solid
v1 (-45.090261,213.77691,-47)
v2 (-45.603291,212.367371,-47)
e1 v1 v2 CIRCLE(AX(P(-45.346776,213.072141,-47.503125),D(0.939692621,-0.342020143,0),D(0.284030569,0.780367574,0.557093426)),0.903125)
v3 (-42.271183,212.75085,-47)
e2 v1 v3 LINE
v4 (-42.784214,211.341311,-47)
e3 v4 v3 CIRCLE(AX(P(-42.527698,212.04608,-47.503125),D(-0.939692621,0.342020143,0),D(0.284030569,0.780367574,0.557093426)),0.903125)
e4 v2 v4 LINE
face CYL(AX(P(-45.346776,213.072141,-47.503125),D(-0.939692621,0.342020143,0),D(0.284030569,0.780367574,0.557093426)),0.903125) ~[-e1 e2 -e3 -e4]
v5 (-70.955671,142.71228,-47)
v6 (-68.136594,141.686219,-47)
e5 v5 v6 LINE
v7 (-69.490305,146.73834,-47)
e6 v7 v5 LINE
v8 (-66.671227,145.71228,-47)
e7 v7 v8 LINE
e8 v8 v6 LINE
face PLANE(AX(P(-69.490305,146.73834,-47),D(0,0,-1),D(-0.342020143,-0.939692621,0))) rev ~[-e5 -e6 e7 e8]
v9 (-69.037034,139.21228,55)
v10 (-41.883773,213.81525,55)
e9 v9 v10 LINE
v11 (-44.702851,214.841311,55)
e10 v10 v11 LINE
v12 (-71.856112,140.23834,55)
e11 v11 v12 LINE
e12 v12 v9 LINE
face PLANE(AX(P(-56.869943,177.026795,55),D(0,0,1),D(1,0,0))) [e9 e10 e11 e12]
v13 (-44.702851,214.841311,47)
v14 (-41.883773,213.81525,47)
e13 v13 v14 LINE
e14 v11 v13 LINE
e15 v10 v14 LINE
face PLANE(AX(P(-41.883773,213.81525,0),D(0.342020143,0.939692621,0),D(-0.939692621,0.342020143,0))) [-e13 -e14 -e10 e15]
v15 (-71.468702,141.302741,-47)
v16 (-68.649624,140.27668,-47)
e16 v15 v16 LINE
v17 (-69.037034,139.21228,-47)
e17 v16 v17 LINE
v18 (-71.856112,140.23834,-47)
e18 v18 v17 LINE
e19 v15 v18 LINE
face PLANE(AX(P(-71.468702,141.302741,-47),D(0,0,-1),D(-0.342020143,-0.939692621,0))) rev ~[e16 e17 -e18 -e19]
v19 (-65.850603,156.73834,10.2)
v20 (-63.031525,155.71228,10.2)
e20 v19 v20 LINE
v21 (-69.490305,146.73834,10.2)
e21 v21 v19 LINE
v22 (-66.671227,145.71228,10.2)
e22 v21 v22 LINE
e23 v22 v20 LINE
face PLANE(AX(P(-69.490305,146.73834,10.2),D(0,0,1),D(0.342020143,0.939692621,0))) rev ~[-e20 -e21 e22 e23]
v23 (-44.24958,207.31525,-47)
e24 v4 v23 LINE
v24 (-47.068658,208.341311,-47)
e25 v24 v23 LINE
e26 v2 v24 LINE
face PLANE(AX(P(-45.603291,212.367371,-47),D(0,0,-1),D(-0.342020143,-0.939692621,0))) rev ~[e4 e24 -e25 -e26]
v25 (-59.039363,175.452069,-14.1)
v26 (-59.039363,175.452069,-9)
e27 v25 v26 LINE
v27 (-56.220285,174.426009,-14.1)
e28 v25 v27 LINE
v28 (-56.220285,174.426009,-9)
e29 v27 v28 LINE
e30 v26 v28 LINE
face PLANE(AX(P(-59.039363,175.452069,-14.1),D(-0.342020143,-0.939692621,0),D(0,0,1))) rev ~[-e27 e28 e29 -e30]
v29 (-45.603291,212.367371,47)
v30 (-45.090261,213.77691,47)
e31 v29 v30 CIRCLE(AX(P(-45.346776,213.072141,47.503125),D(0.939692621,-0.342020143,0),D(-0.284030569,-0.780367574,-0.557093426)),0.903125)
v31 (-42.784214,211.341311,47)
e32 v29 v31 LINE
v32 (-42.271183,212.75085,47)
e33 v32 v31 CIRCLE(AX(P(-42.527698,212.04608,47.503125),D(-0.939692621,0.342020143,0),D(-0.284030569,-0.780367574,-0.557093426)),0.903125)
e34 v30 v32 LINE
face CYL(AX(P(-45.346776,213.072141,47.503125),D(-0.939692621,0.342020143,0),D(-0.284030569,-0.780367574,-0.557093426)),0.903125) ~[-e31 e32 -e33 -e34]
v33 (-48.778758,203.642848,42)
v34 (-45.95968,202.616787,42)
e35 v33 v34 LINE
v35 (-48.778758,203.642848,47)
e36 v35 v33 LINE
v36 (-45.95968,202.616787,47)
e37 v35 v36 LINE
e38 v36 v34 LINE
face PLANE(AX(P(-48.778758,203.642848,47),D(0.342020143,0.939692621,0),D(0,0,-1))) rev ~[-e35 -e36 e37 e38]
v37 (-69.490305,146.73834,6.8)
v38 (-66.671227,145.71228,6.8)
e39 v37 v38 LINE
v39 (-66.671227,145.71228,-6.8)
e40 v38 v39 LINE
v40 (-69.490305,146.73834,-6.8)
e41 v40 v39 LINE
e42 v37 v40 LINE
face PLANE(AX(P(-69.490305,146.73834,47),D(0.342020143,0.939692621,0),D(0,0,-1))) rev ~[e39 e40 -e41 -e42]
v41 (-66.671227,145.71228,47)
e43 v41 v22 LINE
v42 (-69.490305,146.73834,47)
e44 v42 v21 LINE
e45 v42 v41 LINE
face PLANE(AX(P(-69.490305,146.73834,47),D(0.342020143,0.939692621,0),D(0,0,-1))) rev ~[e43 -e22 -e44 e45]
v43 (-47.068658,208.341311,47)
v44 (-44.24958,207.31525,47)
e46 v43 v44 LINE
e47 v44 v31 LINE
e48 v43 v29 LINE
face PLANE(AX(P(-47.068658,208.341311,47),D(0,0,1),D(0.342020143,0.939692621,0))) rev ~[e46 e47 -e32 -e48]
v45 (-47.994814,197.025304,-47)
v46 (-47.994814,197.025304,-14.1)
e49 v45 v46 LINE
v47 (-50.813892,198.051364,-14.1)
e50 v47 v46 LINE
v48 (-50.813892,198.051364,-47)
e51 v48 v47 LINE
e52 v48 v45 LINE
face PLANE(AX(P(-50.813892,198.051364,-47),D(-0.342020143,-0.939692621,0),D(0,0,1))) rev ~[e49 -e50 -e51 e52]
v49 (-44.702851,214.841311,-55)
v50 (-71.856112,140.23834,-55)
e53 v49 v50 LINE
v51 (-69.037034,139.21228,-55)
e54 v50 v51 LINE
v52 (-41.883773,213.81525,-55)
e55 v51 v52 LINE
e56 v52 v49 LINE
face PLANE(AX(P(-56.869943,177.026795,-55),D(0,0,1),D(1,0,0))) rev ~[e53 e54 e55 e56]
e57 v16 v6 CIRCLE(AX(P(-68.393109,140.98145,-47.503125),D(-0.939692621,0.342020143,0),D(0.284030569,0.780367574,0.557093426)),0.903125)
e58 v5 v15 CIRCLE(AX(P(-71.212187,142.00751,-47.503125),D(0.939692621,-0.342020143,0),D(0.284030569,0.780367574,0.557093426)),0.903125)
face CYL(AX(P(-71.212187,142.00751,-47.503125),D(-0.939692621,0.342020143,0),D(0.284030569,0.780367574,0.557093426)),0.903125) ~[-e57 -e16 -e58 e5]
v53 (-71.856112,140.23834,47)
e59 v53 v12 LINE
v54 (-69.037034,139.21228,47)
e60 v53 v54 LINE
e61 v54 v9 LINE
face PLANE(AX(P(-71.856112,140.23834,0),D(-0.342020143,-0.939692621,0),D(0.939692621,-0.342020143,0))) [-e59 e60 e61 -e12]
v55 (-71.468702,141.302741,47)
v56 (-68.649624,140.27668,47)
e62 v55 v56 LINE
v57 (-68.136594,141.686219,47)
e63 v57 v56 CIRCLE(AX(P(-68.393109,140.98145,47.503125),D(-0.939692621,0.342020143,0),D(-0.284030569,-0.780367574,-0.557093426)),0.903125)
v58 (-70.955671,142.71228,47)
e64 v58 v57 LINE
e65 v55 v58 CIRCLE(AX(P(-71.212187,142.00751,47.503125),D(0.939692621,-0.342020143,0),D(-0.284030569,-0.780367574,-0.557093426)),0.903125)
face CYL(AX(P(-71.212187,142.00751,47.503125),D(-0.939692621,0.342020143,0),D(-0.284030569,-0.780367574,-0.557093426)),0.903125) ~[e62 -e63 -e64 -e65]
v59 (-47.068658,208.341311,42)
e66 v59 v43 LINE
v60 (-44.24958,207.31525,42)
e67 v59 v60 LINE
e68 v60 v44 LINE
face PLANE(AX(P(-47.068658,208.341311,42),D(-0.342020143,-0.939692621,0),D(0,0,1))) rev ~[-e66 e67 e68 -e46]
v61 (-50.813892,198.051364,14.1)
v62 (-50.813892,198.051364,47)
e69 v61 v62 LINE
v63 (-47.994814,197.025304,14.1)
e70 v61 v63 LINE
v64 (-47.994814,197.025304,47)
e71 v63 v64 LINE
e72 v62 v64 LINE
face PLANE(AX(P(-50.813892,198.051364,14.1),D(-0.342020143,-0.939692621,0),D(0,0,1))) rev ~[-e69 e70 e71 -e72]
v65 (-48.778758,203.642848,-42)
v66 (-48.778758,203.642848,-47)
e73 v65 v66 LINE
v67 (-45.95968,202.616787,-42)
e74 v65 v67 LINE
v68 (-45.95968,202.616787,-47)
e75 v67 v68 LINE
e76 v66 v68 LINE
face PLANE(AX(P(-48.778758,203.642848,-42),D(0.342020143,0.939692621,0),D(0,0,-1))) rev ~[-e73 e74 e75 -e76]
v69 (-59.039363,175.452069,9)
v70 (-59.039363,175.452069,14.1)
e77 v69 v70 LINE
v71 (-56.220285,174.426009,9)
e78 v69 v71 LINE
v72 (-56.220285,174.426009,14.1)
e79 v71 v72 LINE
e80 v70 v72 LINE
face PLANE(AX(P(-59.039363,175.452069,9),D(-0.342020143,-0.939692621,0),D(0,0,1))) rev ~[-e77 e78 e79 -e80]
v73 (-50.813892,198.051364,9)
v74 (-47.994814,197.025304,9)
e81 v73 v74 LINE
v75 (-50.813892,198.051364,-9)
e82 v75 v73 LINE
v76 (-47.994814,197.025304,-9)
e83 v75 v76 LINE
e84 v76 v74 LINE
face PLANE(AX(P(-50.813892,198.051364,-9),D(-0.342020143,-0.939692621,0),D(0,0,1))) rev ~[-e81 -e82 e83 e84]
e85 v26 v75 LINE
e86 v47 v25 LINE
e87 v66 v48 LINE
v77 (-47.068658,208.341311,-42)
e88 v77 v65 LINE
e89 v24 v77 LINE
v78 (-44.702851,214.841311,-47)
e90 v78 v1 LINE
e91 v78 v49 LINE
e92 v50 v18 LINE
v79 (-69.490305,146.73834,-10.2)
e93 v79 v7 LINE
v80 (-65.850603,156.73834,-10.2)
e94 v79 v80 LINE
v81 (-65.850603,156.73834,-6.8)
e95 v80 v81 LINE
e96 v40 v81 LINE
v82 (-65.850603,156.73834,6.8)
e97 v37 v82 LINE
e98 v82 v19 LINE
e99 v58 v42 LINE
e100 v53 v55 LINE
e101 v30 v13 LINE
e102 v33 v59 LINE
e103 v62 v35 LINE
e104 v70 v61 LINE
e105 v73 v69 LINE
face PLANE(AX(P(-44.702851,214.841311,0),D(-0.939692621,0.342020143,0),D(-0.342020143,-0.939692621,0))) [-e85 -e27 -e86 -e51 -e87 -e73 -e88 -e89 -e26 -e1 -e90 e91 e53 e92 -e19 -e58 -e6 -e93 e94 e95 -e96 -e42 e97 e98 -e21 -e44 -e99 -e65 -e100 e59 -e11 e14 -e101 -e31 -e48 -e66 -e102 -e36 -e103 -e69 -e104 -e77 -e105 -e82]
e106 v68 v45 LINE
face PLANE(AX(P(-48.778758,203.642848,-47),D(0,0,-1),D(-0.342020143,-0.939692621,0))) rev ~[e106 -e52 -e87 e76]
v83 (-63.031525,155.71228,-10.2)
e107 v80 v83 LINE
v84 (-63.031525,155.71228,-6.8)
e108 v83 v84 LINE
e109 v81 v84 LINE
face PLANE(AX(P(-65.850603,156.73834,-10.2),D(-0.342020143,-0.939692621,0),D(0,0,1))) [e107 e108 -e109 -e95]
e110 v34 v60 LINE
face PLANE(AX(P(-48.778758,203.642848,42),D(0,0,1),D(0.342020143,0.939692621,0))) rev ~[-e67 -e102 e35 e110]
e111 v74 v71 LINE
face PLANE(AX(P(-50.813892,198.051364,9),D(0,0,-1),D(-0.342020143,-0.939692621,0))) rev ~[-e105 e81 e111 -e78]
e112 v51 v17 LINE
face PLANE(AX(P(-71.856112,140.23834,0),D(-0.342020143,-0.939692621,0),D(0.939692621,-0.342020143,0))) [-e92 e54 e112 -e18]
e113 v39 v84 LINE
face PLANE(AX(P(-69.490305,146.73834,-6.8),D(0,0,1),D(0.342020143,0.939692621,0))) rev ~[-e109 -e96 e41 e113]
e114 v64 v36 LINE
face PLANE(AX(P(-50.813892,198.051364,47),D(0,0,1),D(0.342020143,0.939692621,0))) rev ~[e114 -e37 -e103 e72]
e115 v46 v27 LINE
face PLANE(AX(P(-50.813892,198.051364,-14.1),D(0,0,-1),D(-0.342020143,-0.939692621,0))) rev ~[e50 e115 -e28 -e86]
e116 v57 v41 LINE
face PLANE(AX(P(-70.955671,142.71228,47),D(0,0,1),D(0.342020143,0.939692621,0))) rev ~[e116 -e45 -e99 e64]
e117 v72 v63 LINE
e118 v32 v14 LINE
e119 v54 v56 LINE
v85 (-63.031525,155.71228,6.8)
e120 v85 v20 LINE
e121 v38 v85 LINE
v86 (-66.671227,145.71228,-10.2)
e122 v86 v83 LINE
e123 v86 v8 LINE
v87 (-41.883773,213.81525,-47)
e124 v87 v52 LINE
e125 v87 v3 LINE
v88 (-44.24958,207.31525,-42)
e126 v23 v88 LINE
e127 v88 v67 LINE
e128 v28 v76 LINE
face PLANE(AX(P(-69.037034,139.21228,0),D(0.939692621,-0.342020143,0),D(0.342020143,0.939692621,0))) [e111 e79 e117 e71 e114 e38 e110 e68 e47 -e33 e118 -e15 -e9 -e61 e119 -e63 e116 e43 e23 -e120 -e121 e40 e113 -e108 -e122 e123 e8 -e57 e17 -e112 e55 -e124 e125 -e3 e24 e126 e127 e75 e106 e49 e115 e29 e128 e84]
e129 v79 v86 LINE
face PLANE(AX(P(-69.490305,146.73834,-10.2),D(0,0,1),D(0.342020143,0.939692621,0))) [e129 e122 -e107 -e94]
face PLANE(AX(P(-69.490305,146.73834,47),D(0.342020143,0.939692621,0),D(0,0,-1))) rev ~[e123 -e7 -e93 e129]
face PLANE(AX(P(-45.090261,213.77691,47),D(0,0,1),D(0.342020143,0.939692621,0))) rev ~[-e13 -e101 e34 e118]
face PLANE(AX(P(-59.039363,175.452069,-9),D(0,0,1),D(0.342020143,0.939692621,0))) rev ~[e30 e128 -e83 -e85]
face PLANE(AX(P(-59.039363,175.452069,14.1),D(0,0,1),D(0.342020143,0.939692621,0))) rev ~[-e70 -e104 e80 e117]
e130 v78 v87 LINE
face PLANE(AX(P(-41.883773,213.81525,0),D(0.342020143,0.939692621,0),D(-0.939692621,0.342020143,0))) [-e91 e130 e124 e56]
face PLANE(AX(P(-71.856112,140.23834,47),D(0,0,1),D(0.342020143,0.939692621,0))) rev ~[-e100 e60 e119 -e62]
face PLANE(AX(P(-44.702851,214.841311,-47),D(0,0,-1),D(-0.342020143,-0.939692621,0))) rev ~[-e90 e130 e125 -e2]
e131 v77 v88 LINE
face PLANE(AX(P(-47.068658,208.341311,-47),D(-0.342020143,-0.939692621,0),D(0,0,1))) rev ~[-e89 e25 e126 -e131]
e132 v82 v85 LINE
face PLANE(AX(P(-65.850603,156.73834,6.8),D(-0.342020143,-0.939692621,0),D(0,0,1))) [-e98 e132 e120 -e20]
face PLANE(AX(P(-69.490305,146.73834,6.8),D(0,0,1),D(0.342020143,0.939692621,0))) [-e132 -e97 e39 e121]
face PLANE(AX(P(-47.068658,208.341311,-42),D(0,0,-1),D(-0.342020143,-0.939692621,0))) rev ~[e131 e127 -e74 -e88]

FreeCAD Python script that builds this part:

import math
import FreeCAD as App
import Part
import Sketcher
Q = App.Units.Quantity


def add_polygon(sketch, points):
    """Adds a closed chain of lines whose ends are joined by coincident constraints."""
    first, n = sketch.GeometryCount, len(points)
    for a, b in zip(points, points[1:] + points[:1]):
        sketch.addGeometry(Part.LineSegment(App.Vector(*a, 0), App.Vector(*b, 0)), False)
    for i in range(n):
        sketch.addConstraint(Sketcher.Constraint("Coincident", first + i, 2, first + (i + 1) % n, 1))

doc = App.newDocument("Part")
body = doc.addObject("PartDesign::Body", "Body")

# Sketch on XY plane
sketch1 = body.newObject("Sketcher::SketchObject", "Sketch")
sketch1.AttachmentSupport = (doc.getObject("XY_Plane"), [""])
sketch1.MapMode = "FlatFace"
add_polygon(sketch1, [(-44.7, 214.8), (-71.9, 140.2), (-69, 139.2), (-41.9, 213.8)])  # lines 0-3
sketch1.addConstraint([
    Sketcher.Constraint("Perpendicular", 0, 1),
    Sketcher.Constraint("Perpendicular", 1, 2),
    Sketcher.Constraint("Perpendicular", 2, 3),
    Sketcher.Constraint("Angle", 0, Q("-110 deg")),
    Sketcher.Constraint("Distance", 1, 3.0),
    Sketcher.Constraint("DistanceX", 0, 2, -1, 1, 71.856112),
    Sketcher.Constraint("DistanceY", -1, 1, 0, 2, 140.23834),
    Sketcher.Constraint("DistanceY", -1, 1, 2, 2, 213.81525),
])
pad1 = body.newObject("PartDesign::Pad", "Pad")
pad1.Profile = sketch1
pad1.Length = 110
pad1.Midplane = True

# Sketch on an angled plane
sketch2 = body.newObject("Sketcher::SketchObject", "Sketch001")
sketch2.Placement = App.Placement(App.Vector(-108.522277, 39.498879, 0), App.Rotation(App.Vector(0, 0, 1), App.Vector(0.342020143, 0.939692621, 0), App.Vector(-0.939692621, 0.342020143, 0), "ZXY"))
sketch2.addGeometry([
    Part.LineSegment(App.Vector(47, 186.6, 0), App.Vector(-47, 186.6, 0)),  # 0
    Part.LineSegment(App.Vector(-47, 186.6, 0), App.Vector(-47, 185.5, 0)),  # 1
    Part.ArcOfCircle(Part.Circle(App.Vector(-47.5, 184.7, 0), App.Vector(0, 0, 1), 0.9), math.radians(-56), math.radians(56)),  # 2
    Part.LineSegment(App.Vector(-47, 184, 0), App.Vector(-47, 179.7, 0)),  # 3
    Part.LineSegment(App.Vector(-47, 179.7, 0), App.Vector(-42, 179.7, 0)),  # 4
    Part.LineSegment(App.Vector(-42, 179.7, 0), App.Vector(-42, 174.7, 0)),  # 5
    Part.LineSegment(App.Vector(-42, 174.7, 0), App.Vector(-47, 174.7, 0)),  # 6
    Part.LineSegment(App.Vector(-47, 174.7, 0), App.Vector(-47, 168.7, 0)),  # 7
    Part.LineSegment(App.Vector(-47, 168.7, 0), App.Vector(-14.1, 168.7, 0)),  # 8
    Part.LineSegment(App.Vector(-14.1, 168.7, 0), App.Vector(-14.1, 144.7, 0)),  # 9
    Part.LineSegment(App.Vector(-14.1, 144.7, 0), App.Vector(-9, 144.7, 0)),  # 10
    Part.LineSegment(App.Vector(-9, 144.7, 0), App.Vector(-9, 168.7, 0)),  # 11
    Part.LineSegment(App.Vector(-9, 168.7, 0), App.Vector(9, 168.7, 0)),  # 12
    Part.LineSegment(App.Vector(9, 168.7, 0), App.Vector(9, 144.7, 0)),  # 13
    Part.LineSegment(App.Vector(9, 144.7, 0), App.Vector(14.1, 144.7, 0)),  # 14
    Part.LineSegment(App.Vector(14.1, 144.7, 0), App.Vector(14.1, 168.7, 0)),  # 15
    Part.LineSegment(App.Vector(14.1, 168.7, 0), App.Vector(47, 168.7, 0)),  # 16
    Part.LineSegment(App.Vector(47, 168.7, 0), App.Vector(47, 174.7, 0)),  # 17
    Part.LineSegment(App.Vector(47, 174.7, 0), App.Vector(42, 174.7, 0)),  # 18
    Part.LineSegment(App.Vector(42, 174.7, 0), App.Vector(42, 179.7, 0)),  # 19
    Part.LineSegment(App.Vector(42, 179.7, 0), App.Vector(47, 179.7, 0)),  # 20
    Part.LineSegment(App.Vector(47, 179.7, 0), App.Vector(47, 184, 0)),  # 21
    Part.ArcOfCircle(Part.Circle(App.Vector(47.5, 184.7, 0), App.Vector(0, 0, 1), 0.9), math.radians(124), math.radians(236)),  # 22
    Part.LineSegment(App.Vector(47, 185.5, 0), App.Vector(47, 186.6, 0)),  # 23
], False)
sketch2.addConstraint([
    Sketcher.Constraint("Coincident", 0, 2, 1, 1),
    Sketcher.Constraint("Coincident", 1, 2, 2, 2),
    Sketcher.Constraint("Coincident", 2, 1, 3, 1),
    Sketcher.Constraint("Coincident", 3, 2, 4, 1),
    Sketcher.Constraint("Coincident", 4, 2, 5, 1),
    Sketcher.Constraint("Coincident", 5, 2, 6, 1),
    Sketcher.Constraint("Coincident", 6, 2, 7, 1),
    Sketcher.Constraint("Coincident", 7, 2, 8, 1),
    Sketcher.Constraint("Coincident", 8, 2, 9, 1),
    Sketcher.Constraint("Coincident", 9, 2, 10, 1),
    Sketcher.Constraint("Coincident", 10, 2, 11, 1),
    Sketcher.Constraint("Coincident", 11, 2, 12, 1),
    Sketcher.Constraint("Coincident", 12, 2, 13, 1),
    Sketcher.Constraint("Coincident", 13, 2, 14, 1),
    Sketcher.Constraint("Coincident", 14, 2, 15, 1),
    Sketcher.Constraint("Coincident", 15, 2, 16, 1),
    Sketcher.Constraint("Coincident", 16, 2, 17, 1),
    Sketcher.Constraint("Coincident", 17, 2, 18, 1),
    Sketcher.Constraint("Coincident", 18, 2, 19, 1),
    Sketcher.Constraint("Coincident", 19, 2, 20, 1),
    Sketcher.Constraint("Coincident", 20, 2, 21, 1),
    Sketcher.Constraint("Coincident", 21, 2, 22, 2),
    Sketcher.Constraint("Coincident", 22, 1, 23, 1),
    Sketcher.Constraint("Coincident", 23, 2, 0, 1),
    Sketcher.Constraint("Horizontal", 0),
    Sketcher.Constraint("Vertical", 1),
    Sketcher.Constraint("Vertical", 3),
    Sketcher.Constraint("Horizontal", 4),
    Sketcher.Constraint("Vertical", 5),
    Sketcher.Constraint("Horizontal", 6),
    Sketcher.Constraint("Vertical", 7),
    Sketcher.Constraint("Horizontal", 8),
    Sketcher.Constraint("Vertical", 9),
    Sketcher.Constraint("Horizontal", 10),
    Sketcher.Constraint("Vertical", 11),
    Sketcher.Constraint("Horizontal", 12),
    Sketcher.Constraint("Vertical", 13),
    Sketcher.Constraint("Horizontal", 14),
    Sketcher.Constraint("Vertical", 15),
    Sketcher.Constraint("Horizontal", 16),
    Sketcher.Constraint("Vertical", 17),
    Sketcher.Constraint("Horizontal", 18),
    Sketcher.Constraint("Vertical", 19),
    Sketcher.Constraint("Horizontal", 20),
    Sketcher.Constraint("Vertical", 21),
    Sketcher.Constraint("Vertical", 23),
    Sketcher.Constraint("Equal", 2, 22),
    Sketcher.Constraint("Symmetric", 2, 3, 22, 3, -2),
    Sketcher.Constraint("Symmetric", 10, 2, 13, 2, -2),
    Sketcher.Constraint("Symmetric", 8, 2, 15, 2, -2),
    Sketcher.Constraint("Symmetric", 6, 2, 17, 2, -2),
    Sketcher.Constraint("Symmetric", 4, 2, 19, 2, -2),
    Sketcher.Constraint("Horizontal", 8, 2, 11, 2),
    Sketcher.Constraint("Horizontal", 2, 1, 21, 2),
    Sketcher.Constraint("Horizontal", 1, 2, 22, 1),
    Sketcher.Constraint("Vertical", 1, 2, 2, 1),
    Sketcher.Constraint("Vertical", 3, 2, 6, 2),
    Sketcher.Constraint("Equal", 20, 5),
    Sketcher.Constraint("DistanceX", 0, 2, 0, 1, 94.0),
    Sketcher.Constraint("DistanceX", 4, 1, 4, 2, 5.0),
    Sketcher.Constraint("DistanceX", 12, 1, 12, 2, 18.0),
    Sketcher.Constraint("DistanceX", 8, 1, 8, 2, 32.9),
    Sketcher.Constraint("DistanceY", 9, 2, 5, 2, 30.0),
    Sketcher.Constraint("DistanceY", 2, 1, 1, 2, 1.5),
    Sketcher.Constraint("Radius", 2, 0.903125),
    Sketcher.Constraint("DistanceY", 1, 2, 1, 1, 1.132712),
    Sketcher.Constraint("DistanceY", 3, 2, 3, 1, 4.284444),
    Sketcher.Constraint("DistanceY", 7, 2, 7, 1, 5.950333),
    Sketcher.Constraint("DistanceY", -1, 1, 0, 2, 186.595519),
])
pocket1 = body.newObject("PartDesign::Pocket", "Pocket")
pocket1.Profile = sketch2
pocket1.Type = "UpToFirst"

# Sketch on an angled plane
sketch3 = body.newObject("Sketcher::SketchObject", "Sketch002")
sketch3.Placement = App.Placement(App.Vector(-108.522277, 39.498879, 0), App.Rotation(App.Vector(0, 0, 1), App.Vector(0.342020143, 0.939692621, 0), App.Vector(-0.939692621, 0.342020143, 0), "ZXY"))
sketch3.addGeometry([
    Part.LineSegment(App.Vector(47, 107.2, 0), App.Vector(47, 108.3, 0)),  # 0
    Part.ArcOfCircle(Part.Circle(App.Vector(47.5, 109.1, 0), App.Vector(0, 0, 1), 0.9), math.radians(124), math.radians(236)),  # 1
    Part.LineSegment(App.Vector(47, 109.8, 0), App.Vector(47, 114.1, 0)),  # 2
    Part.LineSegment(App.Vector(47, 114.1, 0), App.Vector(-47, 114.1, 0)),  # 3
    Part.LineSegment(App.Vector(-47, 114.1, 0), App.Vector(-47, 109.8, 0)),  # 4
    Part.ArcOfCircle(Part.Circle(App.Vector(-47.5, 109.1, 0), App.Vector(0, 0, 1), 0.9), math.radians(-56), math.radians(56)),  # 5
    Part.LineSegment(App.Vector(-47, 108.3, 0), App.Vector(-47, 107.2, 0)),  # 6
    Part.LineSegment(App.Vector(-47, 107.2, 0), App.Vector(47, 107.2, 0)),  # 7
], False)
sketch3.addConstraint([
    Sketcher.Constraint("Coincident", 0, 2, 1, 2),
    Sketcher.Constraint("Coincident", 1, 1, 2, 1),
    Sketcher.Constraint("Coincident", 2, 2, 3, 1),
    Sketcher.Constraint("Coincident", 3, 2, 4, 1),
    Sketcher.Constraint("Coincident", 4, 2, 5, 2),
    Sketcher.Constraint("Coincident", 5, 1, 6, 1),
    Sketcher.Constraint("Coincident", 6, 2, 7, 1),
    Sketcher.Constraint("Coincident", 7, 2, 0, 1),
    Sketcher.Constraint("Vertical", 0),
    Sketcher.Constraint("Vertical", 2),
    Sketcher.Constraint("Horizontal", 3),
    Sketcher.Constraint("Vertical", 4),
    Sketcher.Constraint("Vertical", 6),
    Sketcher.Constraint("Horizontal", 7),
    Sketcher.Constraint("Equal", 1, 5),
    Sketcher.Constraint("Symmetric", 1, 3, 5, 3, -2),
    Sketcher.Constraint("Horizontal", 1, 1, 4, 2),
    Sketcher.Constraint("Horizontal", 0, 2, 5, 1),
    Sketcher.Constraint("Vertical", 0, 2, 1, 1),
    Sketcher.Constraint("DistanceX", 3, 2, 3, 1, 94.0),
    Sketcher.Constraint("DistanceY", 0, 2, 1, 1, 1.5),
    Sketcher.Constraint("Radius", 1, 0.903125),
    Sketcher.Constraint("DistanceY", 0, 1, 0, 2, 1.132712),
    Sketcher.Constraint("DistanceY", 2, 1, 2, 2, 4.284444),
    Sketcher.Constraint("DistanceY", -1, 1, 2, 2, 114.121851),
])
pocket2 = body.newObject("PartDesign::Pocket", "Pocket001")
pocket2.Profile = sketch3
pocket2.Type = "UpToFirst"

# Sketch on an angled plane
sketch4 = body.newObject("Sketcher::SketchObject", "Sketch003")
sketch4.Placement = App.Placement(App.Vector(-108.522277, 39.498879, 0), App.Rotation(App.Vector(0, 0, 1), App.Vector(0.342020143, 0.939692621, 0), App.Vector(-0.939692621, 0.342020143, 0), "ZXY"))
add_polygon(sketch4, [(6.8, 124.8), (6.8, 114.1), (10.2, 114.1), (10.2, 124.8)])  # lines 0-3
sketch4.addConstraint([
    Sketcher.Constraint("Vertical", 0),
    Sketcher.Constraint("Horizontal", 1),
    Sketcher.Constraint("Vertical", 2),
    Sketcher.Constraint("Horizontal", 3),
    Sketcher.Constraint("DistanceX", 1, 1, 1, 2, 3.4),
    Sketcher.Constraint("DistanceX", -1, 1, 0, 2, 6.8),
    Sketcher.Constraint("DistanceY", 0, 2, 0, 1, 10.641778),
    Sketcher.Constraint("DistanceY", -1, 1, 0, 2, 114.121851),
])
pocket3 = body.newObject("PartDesign::Pocket", "Pocket002")
pocket3.Profile = sketch4
pocket3.Type = "UpToFirst"

# Sketch on an angled plane
sketch5 = body.newObject("Sketcher::SketchObject", "Sketch004")
sketch5.Placement = App.Placement(App.Vector(-108.522277, 39.498879, 0), App.Rotation(App.Vector(0, 0, 1), App.Vector(0.342020143, 0.939692621, 0), App.Vector(-0.939692621, 0.342020143, 0), "ZXY"))
add_polygon(sketch5, [(-10.2, 124.8), (-10.2, 114.1), (-6.8, 114.1), (-6.8, 124.8)])  # lines 0-3
sketch5.addConstraint([
    Sketcher.Constraint("Vertical", 0),
    Sketcher.Constraint("Horizontal", 1),
    Sketcher.Constraint("Vertical", 2),
    Sketcher.Constraint("Horizontal", 3),
    Sketcher.Constraint("DistanceX", 1, 1, 1, 2, 3.4),
    Sketcher.Constraint("DistanceX", 0, 2, -1, 1, 10.2),
    Sketcher.Constraint("DistanceY", 0, 2, 0, 1, 10.641778),
    Sketcher.Constraint("DistanceY", -1, 1, 0, 2, 114.121851),
])
pocket4 = body.newObject("PartDesign::Pocket", "Pocket003")
pocket4.Profile = sketch5
pocket4.Type = "UpToFirst"

doc.recompute()
